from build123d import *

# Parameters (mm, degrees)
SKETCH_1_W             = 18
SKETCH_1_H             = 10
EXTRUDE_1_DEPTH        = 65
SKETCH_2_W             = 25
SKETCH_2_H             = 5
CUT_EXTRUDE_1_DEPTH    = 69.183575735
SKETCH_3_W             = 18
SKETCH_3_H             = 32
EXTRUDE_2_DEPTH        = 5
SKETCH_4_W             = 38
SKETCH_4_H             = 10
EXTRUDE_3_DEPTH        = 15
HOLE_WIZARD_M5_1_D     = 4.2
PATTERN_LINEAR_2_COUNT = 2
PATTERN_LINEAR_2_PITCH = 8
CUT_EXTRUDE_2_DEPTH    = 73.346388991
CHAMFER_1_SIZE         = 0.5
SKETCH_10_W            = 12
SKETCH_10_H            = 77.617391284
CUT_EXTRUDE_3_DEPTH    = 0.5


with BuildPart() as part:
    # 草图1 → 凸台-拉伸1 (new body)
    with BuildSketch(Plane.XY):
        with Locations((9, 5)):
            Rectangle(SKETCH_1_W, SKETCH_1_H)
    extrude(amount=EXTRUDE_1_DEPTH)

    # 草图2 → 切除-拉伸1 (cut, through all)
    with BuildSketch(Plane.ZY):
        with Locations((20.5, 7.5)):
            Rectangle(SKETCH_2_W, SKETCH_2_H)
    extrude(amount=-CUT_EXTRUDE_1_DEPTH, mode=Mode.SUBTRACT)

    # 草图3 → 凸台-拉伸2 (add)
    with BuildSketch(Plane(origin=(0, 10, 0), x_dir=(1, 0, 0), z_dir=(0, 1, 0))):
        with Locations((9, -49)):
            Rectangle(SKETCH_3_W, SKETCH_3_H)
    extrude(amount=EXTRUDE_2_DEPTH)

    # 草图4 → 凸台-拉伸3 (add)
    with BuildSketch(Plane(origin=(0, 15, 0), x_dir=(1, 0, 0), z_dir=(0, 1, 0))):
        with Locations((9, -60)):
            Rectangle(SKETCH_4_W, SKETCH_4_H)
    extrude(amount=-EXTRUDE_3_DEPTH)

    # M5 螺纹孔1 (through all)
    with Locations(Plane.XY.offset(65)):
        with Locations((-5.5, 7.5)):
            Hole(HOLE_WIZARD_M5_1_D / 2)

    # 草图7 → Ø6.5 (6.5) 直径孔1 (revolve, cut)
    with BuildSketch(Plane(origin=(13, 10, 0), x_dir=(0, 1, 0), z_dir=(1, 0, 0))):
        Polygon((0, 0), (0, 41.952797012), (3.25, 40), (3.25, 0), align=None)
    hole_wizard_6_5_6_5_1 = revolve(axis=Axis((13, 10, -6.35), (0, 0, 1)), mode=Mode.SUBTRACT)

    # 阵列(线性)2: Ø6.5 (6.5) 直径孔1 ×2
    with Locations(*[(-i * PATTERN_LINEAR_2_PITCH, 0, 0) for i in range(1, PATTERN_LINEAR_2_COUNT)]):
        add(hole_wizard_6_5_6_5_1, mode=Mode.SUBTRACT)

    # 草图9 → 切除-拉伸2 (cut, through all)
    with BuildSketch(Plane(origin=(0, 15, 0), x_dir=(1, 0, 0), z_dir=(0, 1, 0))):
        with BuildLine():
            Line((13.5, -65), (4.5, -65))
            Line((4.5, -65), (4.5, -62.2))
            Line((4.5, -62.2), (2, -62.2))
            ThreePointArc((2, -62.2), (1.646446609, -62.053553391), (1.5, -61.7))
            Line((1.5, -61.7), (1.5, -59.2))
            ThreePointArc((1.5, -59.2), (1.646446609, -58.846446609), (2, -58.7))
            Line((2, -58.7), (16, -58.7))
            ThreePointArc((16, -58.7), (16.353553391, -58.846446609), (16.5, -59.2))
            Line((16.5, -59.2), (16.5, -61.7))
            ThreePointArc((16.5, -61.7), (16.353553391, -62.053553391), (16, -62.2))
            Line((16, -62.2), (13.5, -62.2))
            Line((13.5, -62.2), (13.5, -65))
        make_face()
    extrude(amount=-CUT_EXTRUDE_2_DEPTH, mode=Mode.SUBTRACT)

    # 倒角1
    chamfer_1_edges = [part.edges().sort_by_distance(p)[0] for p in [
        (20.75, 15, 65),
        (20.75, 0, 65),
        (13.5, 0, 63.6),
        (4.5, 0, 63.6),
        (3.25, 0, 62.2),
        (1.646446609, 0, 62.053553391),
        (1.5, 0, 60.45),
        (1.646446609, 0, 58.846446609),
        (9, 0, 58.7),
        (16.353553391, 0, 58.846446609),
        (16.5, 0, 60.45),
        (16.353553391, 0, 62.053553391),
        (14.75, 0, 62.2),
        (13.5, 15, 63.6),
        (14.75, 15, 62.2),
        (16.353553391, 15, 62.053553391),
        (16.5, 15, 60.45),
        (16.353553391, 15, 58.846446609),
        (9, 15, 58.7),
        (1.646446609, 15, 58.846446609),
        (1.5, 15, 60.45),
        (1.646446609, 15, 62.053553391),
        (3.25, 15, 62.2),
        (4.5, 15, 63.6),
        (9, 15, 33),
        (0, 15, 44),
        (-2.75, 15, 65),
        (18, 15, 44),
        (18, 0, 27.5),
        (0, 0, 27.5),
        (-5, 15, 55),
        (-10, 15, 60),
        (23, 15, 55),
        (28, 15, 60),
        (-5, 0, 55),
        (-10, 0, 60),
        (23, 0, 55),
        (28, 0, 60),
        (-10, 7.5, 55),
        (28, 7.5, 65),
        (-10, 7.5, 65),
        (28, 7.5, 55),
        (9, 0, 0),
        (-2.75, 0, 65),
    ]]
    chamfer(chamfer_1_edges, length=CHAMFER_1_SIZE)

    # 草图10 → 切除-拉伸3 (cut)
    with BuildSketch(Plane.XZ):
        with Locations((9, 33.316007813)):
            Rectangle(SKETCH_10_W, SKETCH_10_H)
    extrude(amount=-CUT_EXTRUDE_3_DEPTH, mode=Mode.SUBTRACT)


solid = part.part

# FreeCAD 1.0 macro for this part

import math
import FreeCAD as App
import Part
import Sketcher
Q = App.Units.Quantity


def edges_at(feature, points):
    """Names of the edges that pass closest to the given points."""
    edges = feature.Shape.Edges
    near = lambda p: min(range(len(edges)), key=lambda i: edges[i].distToShape(Part.Vertex(*p))[0])
    return sorted({f"Edge{near(p) + 1}" for p in points})

doc = App.newDocument("Part")
body = doc.addObject("PartDesign::Body", "Body")

# Sketch on XY plane
sketch1 = doc.addObject("Sketcher::SketchObject", "Sketch")
body.addObject(sketch1)
sketch1.AttachmentSupport = (doc.XY_Plane, [""])
sketch1.MapMode = "FlatFace"
sketch1.addGeometry([
    Part.LineSegment(App.Vector(0, 10, 0), App.Vector(0, 0, 0)),
    Part.LineSegment(App.Vector(0, 0, 0), App.Vector(18, 0, 0)),
    Part.LineSegment(App.Vector(18, 0, 0), App.Vector(18, 10, 0)),
    Part.LineSegment(App.Vector(18, 10, 0), App.Vector(0, 10, 0)),
], False)
sketch1.addConstraint([
    Sketcher.Constraint("Coincident", 0, 2, 1, 1),
    Sketcher.Constraint("Coincident", 1, 2, 2, 1),
    Sketcher.Constraint("Coincident", 2, 2, 3, 1),
    Sketcher.Constraint("Coincident", 3, 2, 0, 1),
    Sketcher.Constraint("Vertical", 0),
    Sketcher.Constraint("Horizontal", 1),
    Sketcher.Constraint("Vertical", 2),
    Sketcher.Constraint("Horizontal", 3),
    Sketcher.Constraint("Coincident", 0, 2, -1, 1),
    Sketcher.Constraint("DistanceX", 1, 1, 1, 2, 18.0),
    Sketcher.Constraint("DistanceY", 0, 2, 0, 1, 10.0),
])
pad1 = doc.addObject("PartDesign::Pad", "Pad")
body.addObject(pad1)
pad1.Profile = sketch1
pad1.Length = 65

# Sketch on YZ plane
sketch2 = doc.addObject("Sketcher::SketchObject", "Sketch001")
body.addObject(sketch2)
sketch2.AttachmentSupport = (doc.YZ_Plane, [""])
sketch2.MapMode = "FlatFace"
sketch2.addGeometry([
    Part.LineSegment(App.Vector(10, 8, 0), App.Vector(5, 8, 0)),
    Part.LineSegment(App.Vector(5, 8, 0), App.Vector(5, 33, 0)),
    Part.LineSegment(App.Vector(5, 33, 0), App.Vector(10, 33, 0)),
    Part.LineSegment(App.Vector(10, 33, 0), App.Vector(10, 8, 0)),
], False)
sketch2.addConstraint([
    Sketcher.Constraint("Coincident", 0, 2, 1, 1),
    Sketcher.Constraint("Coincident", 1, 2, 2, 1),
    Sketcher.Constraint("Coincident", 2, 2, 3, 1),
    Sketcher.Constraint("Coincident", 3, 2, 0, 1),
    Sketcher.Constraint("Horizontal", 0),
    Sketcher.Constraint("Vertical", 1),
    Sketcher.Constraint("Horizontal", 2),
    Sketcher.Constraint("Vertical", 3),
    Sketcher.Constraint("DistanceX", 0, 2, 0, 1, 5.0),
    Sketcher.Constraint("DistanceY", 1, 1, 1, 2, 25.0),
    Sketcher.Constraint("DistanceX", -1, 1, 0, 2, 5.0),
    Sketcher.Constraint("DistanceY", -1, 1, 0, 2, 8.0),
])
pocket1 = doc.addObject("PartDesign::Pocket", "Pocket")
body.addObject(pocket1)
pocket1.Profile = sketch2
pocket1.Type = "ThroughAll"
pocket1.Reversed = True

# Sketch on XZ plane
sketch3 = doc.addObject("Sketcher::SketchObject", "Sketch002")
body.addObject(sketch3)
sketch3.AttachmentSupport = (doc.XZ_Plane, [""])
sketch3.MapMode = "FlatFace"
sketch3.AttachmentOffset = App.Placement(App.Vector(0, 0, -10), App.Rotation())
sketch3.addGeometry([
    Part.LineSegment(App.Vector(0, 33, 0), App.Vector(0, 65, 0)),
    Part.LineSegment(App.Vector(0, 65, 0), App.Vector(18, 65, 0)),
    Part.LineSegment(App.Vector(18, 65, 0), App.Vector(18, 33, 0)),
    Part.LineSegment(App.Vector(18, 33, 0), App.Vector(0, 33, 0)),
], False)
sketch3.addConstraint([
    Sketcher.Constraint("Coincident", 0, 2, 1, 1),
    Sketcher.Constraint("Coincident", 1, 2, 2, 1),
    Sketcher.Constraint("Coincident", 2, 2, 3, 1),
    Sketcher.Constraint("Coincident", 3, 2, 0, 1),
    Sketcher.Constraint("Vertical", 0),
    Sketcher.Constraint("Horizontal", 1),
    Sketcher.Constraint("Vertical", 2),
    Sketcher.Constraint("Horizontal", 3),
    Sketcher.Constraint("PointOnObject", 0, 2, -2),
    Sketcher.Constraint("DistanceX", 1, 1, 1, 2, 18.0),
    Sketcher.Constraint("DistanceY", 0, 1, 0, 2, 32.0),
    Sketcher.Constraint("DistanceY", -1, 1, 0, 2, 65.0),
])
pad2 = doc.addObject("PartDesign::Pad", "Pad001")
body.addObject(pad2)
pad2.Profile = sketch3
pad2.Length = 5
pad2.Reversed = True

# Sketch on XZ plane
sketch4 = doc.addObject("Sketcher::SketchObject", "Sketch003")
body.addObject(sketch4)
sketch4.AttachmentSupport = (doc.XZ_Plane, [""])
sketch4.MapMode = "FlatFace"
sketch4.AttachmentOffset = App.Placement(App.Vector(0, 0, -15), App.Rotation())
sketch4.addGeometry([
    Part.LineSegment(App.Vector(-10, 55, 0), App.Vector(-10, 65, 0)),
    Part.LineSegment(App.Vector(-10, 65, 0), App.Vector(28, 65, 0)),
    Part.LineSegment(App.Vector(28, 65, 0), App.Vector(28, 55, 0)),
    Part.LineSegment(App.Vector(28, 55, 0), App.Vector(-10, 55, 0)),
], False)
sketch4.addConstraint([
    Sketcher.Constraint("Coincident", 0, 2, 1, 1),
    Sketcher.Constraint("Coincident", 1, 2, 2, 1),
    Sketcher.Constraint("Coincident", 2, 2, 3, 1),
    Sketcher.Constraint("Coincident", 3, 2, 0, 1),
    Sketcher.Constraint("Vertical", 0),
    Sketcher.Constraint("Horizontal", 1),
    Sketcher.Constraint("Vertical", 2),
    Sketcher.Constraint("Horizontal", 3),
    Sketcher.Constraint("DistanceX", 1, 1, 1, 2, 38.0),
    Sketcher.Constraint("DistanceY", 0, 1, 0, 2, 10.0),
    Sketcher.Constraint("DistanceX", 0, 2, -1, 1, 10.0),
    Sketcher.Constraint("DistanceY", -1, 1, 0, 2, 65.0),
])
pad3 = doc.addObject("PartDesign::Pad", "Pad002")
body.addObject(pad3)
pad3.Profile = sketch4
pad3.Length = 15

# Sketch on XY plane
sketch5 = doc.addObject("Sketcher::SketchObject", "Sketch004")
body.addObject(sketch5)
sketch5.AttachmentSupport = (doc.XY_Plane, [""])
sketch5.MapMode = "FlatFace"
sketch5.AttachmentOffset = App.Placement(App.Vector(0, 0, 65), App.Rotation())
sketch5.addGeometry(Part.Circle(App.Vector(-5.5, 7.5, 0), App.Vector(0, 0, 1), 2.1), False)
sketch5.addConstraint([
    Sketcher.Constraint("Diameter", 0, 4.2),
    Sketcher.Constraint("DistanceX", 0, 3, -1, 1, 5.5),
    Sketcher.Constraint("DistanceY", -1, 1, 0, 3, 7.5),
])
doc.recompute()
hole = doc.addObject("PartDesign::Hole", "Hole")
body.addObject(hole)
hole.Profile = sketch5
hole.ThreadType = "None"
hole.Diameter = 4.2
hole.DepthType = "ThroughAll"

# Sketch on YZ plane
sketch6 = doc.addObject("Sketcher::SketchObject", "Sketch005")
body.addObject(sketch6)
sketch6.AttachmentSupport = (doc.YZ_Plane, [""])
sketch6.MapMode = "FlatFace"
sketch6.AttachmentOffset = App.Placement(App.Vector(0, 0, 13), App.Rotation())
sketch6.addGeometry([
    Part.LineSegment(App.Vector(10, 41.952797, 0), App.Vector(10, 0, 0)),
    Part.LineSegment(App.Vector(10, 0, 0), App.Vector(13.25, 0, 0)),
    Part.LineSegment(App.Vector(13.25, 0, 0), App.Vector(13.25, 40, 0)),
    Part.LineSegment(App.Vector(13.25, 40, 0), App.Vector(10, 41.952797, 0)),
], False)
sketch6.addGeometry(Part.LineSegment(App.Vector(10, 0, 0), App.Vector(10, 41.952797, 0)), True)  # axis
sketch6.addConstraint([
    Sketcher.Constraint("Coincident", 0, 2, 1, 1),
    Sketcher.Constraint("Coincident", 1, 2, 2, 1),
    Sketcher.Constraint("Coincident", 2, 2, 3, 1),
    Sketcher.Constraint("Coincident", 3, 2, 0, 1),
    Sketcher.Constraint("Vertical", 0),
    Sketcher.Constraint("Horizontal", 1),
    Sketcher.Constraint("Vertical", 2),
    Sketcher.Constraint("Vertical", 4),
    Sketcher.Constraint("Coincident", 4, 1, 0, 2),
    Sketcher.Constraint("PointOnObject", 0, 2, -1),
    Sketcher.Constraint("Equal", 0, 4),
    Sketcher.Constraint("DistanceY", 2, 1, 2, 2, 40.0),
    Sketcher.Constraint("Angle", 3, Q("149 deg")),
    Sketcher.Constraint("DistanceX", -1, 1, 0, 2, 10.0),
    Sketcher.Constraint("DistanceX", 1, 1, 1, 2, 3.25),
])
groove = doc.addObject("PartDesign::Groove", "Groove")
body.addObject(groove)
groove.Profile = sketch6
groove.ReferenceAxis = (sketch6, ["Axis0"])
groove.Angle = 360
doc.recompute()

linearpattern = doc.addObject("PartDesign::LinearPattern", "LinearPattern")
body.addObject(linearpattern)
linearpattern.Originals = [groove]
linearpattern.Direction = (doc.X_Axis, [""])
linearpattern.Mode = "offset"
linearpattern.Offset = 8
linearpattern.Occurrences = 2
linearpattern.Reversed = True
body.Tip = linearpattern

# Sketch on XZ plane
sketch7 = doc.addObject("Sketcher::SketchObject", "Sketch006")
body.addObject(sketch7)
sketch7.AttachmentSupport = (doc.XZ_Plane, [""])
sketch7.MapMode = "FlatFace"
sketch7.AttachmentOffset = App.Placement(App.Vector(0, 0, -15), App.Rotation())
sketch7.addGeometry([
    Part.LineSegment(App.Vector(4.5, 65, 0), App.Vector(13.5, 65, 0)),  # 0
    Part.LineSegment(App.Vector(13.5, 65, 0), App.Vector(13.5, 62.2, 0)),  # 1
    Part.LineSegment(App.Vector(13.5, 62.2, 0), App.Vector(16, 62.2, 0)),  # 2
    Part.ArcOfCircle(Part.Circle(App.Vector(16, 61.7, 0), App.Vector(0, 0, 1), 0.5), math.radians(0), math.radians(90)),  # 3
    Part.LineSegment(App.Vector(16.5, 61.7, 0), App.Vector(16.5, 59.2, 0)),  # 4
    Part.ArcOfCircle(Part.Circle(App.Vector(16, 59.2, 0), App.Vector(0, 0, 1), 0.5), math.radians(-90), math.radians(0)),  # 5
    Part.LineSegment(App.Vector(16, 58.7, 0), App.Vector(2, 58.7, 0)),  # 6
    Part.ArcOfCircle(Part.Circle(App.Vector(2, 59.2, 0), App.Vector(0, 0, 1), 0.5), math.radians(180), math.radians(270)),  # 7
    Part.LineSegment(App.Vector(1.5, 59.2, 0), App.Vector(1.5, 61.7, 0)),  # 8
    Part.ArcOfCircle(Part.Circle(App.Vector(2, 61.7, 0), App.Vector(0, 0, 1), 0.5), math.radians(90), math.radians(180)),  # 9
    Part.LineSegment(App.Vector(2, 62.2, 0), App.Vector(4.5, 62.2, 0)),  # 10
    Part.LineSegment(App.Vector(4.5, 62.2, 0), App.Vector(4.5, 65, 0)),  # 11
], False)
sketch7.addConstraint([
    Sketcher.Constraint("Coincident", 0, 2, 1, 1),
    Sketcher.Constraint("Coincident", 1, 2, 2, 1),
    Sketcher.Constraint("Tangent", 2, 2, 3, 2),
    Sketcher.Constraint("Tangent", 3, 1, 4, 1),
    Sketcher.Constraint("Tangent", 4, 2, 5, 2),
    Sketcher.Constraint("Tangent", 5, 1, 6, 1),
    Sketcher.Constraint("Tangent", 6, 2, 7, 2),
    Sketcher.Constraint("Tangent", 7, 1, 8, 1),
    Sketcher.Constraint("Tangent", 8, 2, 9, 2),
    Sketcher.Constraint("Tangent", 9, 1, 10, 1),
    Sketcher.Constraint("Coincident", 10, 2, 11, 1),
    Sketcher.Constraint("Coincident", 11, 2, 0, 1),
    Sketcher.Constraint("Horizontal", 0),
    Sketcher.Constraint("Vertical", 1),
    Sketcher.Constraint("Horizontal", 2),
    Sketcher.Constraint("Vertical", 4),
    Sketcher.Constraint("Horizontal", 6),
    Sketcher.Constraint("Vertical", 8),
    Sketcher.Constraint("Horizontal", 10),
    Sketcher.Constraint("Vertical", 11),
    Sketcher.Constraint("Equal", 3, 5),
    Sketcher.Constraint("Equal", 5, 7),
    Sketcher.Constraint("Equal", 7, 9),
    Sketcher.Constraint("Horizontal", 3, 3, 9, 3),
    Sketcher.Constraint("Equal", 2, 10),
    Sketcher.Constraint("Equal", 10, 4),
    Sketcher.Constraint("Radius", 3, 0.5),
    Sketcher.Constraint("DistanceX", 0, 1, 0, 2, 9.0),
    Sketcher.Constraint("DistanceX", 6, 2, 6, 1, 14.0),
    Sketcher.Constraint("DistanceY", 1, 2, 1, 1, 2.8),
    Sketcher.Constraint("DistanceX", -1, 1, 3, 3, 16.0),
    Sketcher.Constraint("DistanceY", -1, 1, 0, 2, 65.0),
])
pocket2 = doc.addObject("PartDesign::Pocket", "Pocket001")
body.addObject(pocket2)
pocket2.Profile = sketch7
pocket2.Type = "ThroughAll"
pocket2.Reversed = True
doc.recompute()

chamfer = doc.addObject("PartDesign::Chamfer", "Chamfer")
body.addObject(chamfer)
chamfer.Base = (pocket2, edges_at(pocket2, [
    (20.75, 15, 65),
    (20.75, 0, 65),
    (13.5, 0, 63.6),
    (4.5, 0, 63.6),
    (3.25, 0, 62.2),
    (1.646, 0, 62.054),
    (1.5, 0, 60.45),
    (1.646, 0, 58.846),
    (9, 0, 58.7),
    (16.354, 0, 58.846),
    (16.5, 0, 60.45),
    (16.354, 0, 62.054),
    (14.75, 0, 62.2),
    (13.5, 15, 63.6),
    (14.75, 15, 62.2),
    (16.354, 15, 62.054),
    (16.5, 15, 60.45),
    (16.354, 15, 58.846),
    (9, 15, 58.7),
    (1.646, 15, 58.846),
    (1.5, 15, 60.45),
    (1.646, 15, 62.054),
    (3.25, 15, 62.2),
    (4.5, 15, 63.6),
    (9, 15, 33),
    (0, 15, 44),
    (-2.75, 15, 65),
    (18, 15, 44),
    (18, 0, 27.5),
    (0, 0, 27.5),
    (-5, 15, 55),
    (-10, 15, 60),
    (23, 15, 55),
    (28, 15, 60),
    (-5, 0, 55),
    (-10, 0, 60),
    (23, 0, 55),
    (28, 0, 60),
    (-10, 7.5, 55),
    (28, 7.5, 65),
    (-10, 7.5, 65),
    (28, 7.5, 55),
    (9, 0, 0),
    (-2.75, 0, 65),
]))
chamfer.Size = 0.5

# Sketch on XZ plane
sketch8 = doc.addObject("Sketcher::SketchObject", "Sketch007")
body.addObject(sketch8)
sketch8.AttachmentSupport = (doc.XZ_Plane, [""])
sketch8.MapMode = "FlatFace"
sketch8.addGeometry([
    Part.LineSegment(App.Vector(3, 72.124703, 0), App.Vector(3, -5.492688, 0)),
    Part.LineSegment(App.Vector(3, -5.492688, 0), App.Vector(15, -5.492688, 0)),
    Part.LineSegment(App.Vector(15, -5.492688, 0), App.Vector(15, 72.124703, 0)),
    Part.LineSegment(App.Vector(15, 72.124703, 0), App.Vector(3, 72.124703, 0)),
], False)
sketch8.addConstraint([
    Sketcher.Constraint("Coincident", 0, 2, 1, 1),
    Sketcher.Constraint("Coincident", 1, 2, 2, 1),
    Sketcher.Constraint("Coincident", 2, 2, 3, 1),
    Sketcher.Constraint("Coincident", 3, 2, 0, 1),
    Sketcher.Constraint("Vertical", 0),
    Sketcher.Constraint("Horizontal", 1),
    Sketcher.Constraint("Vertical", 2),
    Sketcher.Constraint("Horizontal", 3),
    Sketcher.Constraint("DistanceX", 1, 1, 1, 2, 12.0),
    Sketcher.Constraint("DistanceX", -1, 1, 0, 2, 3.0),
    Sketcher.Constraint("DistanceY", 0, 2, 0, 1, 77.617391),
    Sketcher.Constraint("DistanceY", 0, 2, -1, 1, 5.492688),
])
pocket3 = doc.addObject("PartDesign::Pocket", "Pocket002")
body.addObject(pocket3)
pocket3.Profile = sketch8
pocket3.Length = 0.5

doc.recompute()
